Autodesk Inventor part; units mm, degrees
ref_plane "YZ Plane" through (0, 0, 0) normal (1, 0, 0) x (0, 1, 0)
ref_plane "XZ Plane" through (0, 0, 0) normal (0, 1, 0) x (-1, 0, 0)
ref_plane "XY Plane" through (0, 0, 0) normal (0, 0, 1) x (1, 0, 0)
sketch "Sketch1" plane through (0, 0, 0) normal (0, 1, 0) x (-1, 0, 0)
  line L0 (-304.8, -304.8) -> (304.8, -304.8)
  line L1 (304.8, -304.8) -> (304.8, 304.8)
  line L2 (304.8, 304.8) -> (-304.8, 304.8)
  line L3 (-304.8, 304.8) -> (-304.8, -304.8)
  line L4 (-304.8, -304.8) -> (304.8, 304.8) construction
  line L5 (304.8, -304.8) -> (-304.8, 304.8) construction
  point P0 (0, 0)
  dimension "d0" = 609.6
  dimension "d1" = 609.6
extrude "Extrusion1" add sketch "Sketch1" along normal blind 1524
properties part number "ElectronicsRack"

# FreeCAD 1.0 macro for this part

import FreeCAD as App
import Part
import Sketcher
from FreeCAD import Vector
Q = App.Units.Quantity


def add_polygon(sketch, points):
    """Adds a closed chain of lines whose ends are joined by coincident constraints."""
    first, n = sketch.GeometryCount, len(points)
    for a, b in zip(points, points[1:] + points[:1]):
        sketch.addGeometry(Part.LineSegment(App.Vector(*a, 0), App.Vector(*b, 0)), False)
    for i in range(n):
        sketch.addConstraint(Sketcher.Constraint("Coincident", first + i, 2, first + (i + 1) % n, 1))

doc = App.newDocument("Part")
body = doc.addObject("PartDesign::Body", "Body")

sketch1 = body.newObject("Sketcher::SketchObject", "Sketch")
sketch1.AttachmentSupport = (doc.getObject("XZ_Plane"), [""])
sketch1.MapMode = "FlatFace"
add_polygon(sketch1, [(305, 305), (305, -305), (-305, -305), (-305, 305)])
sketch1.addConstraint([
    Sketcher.Constraint("Vertical", 0),
    Sketcher.Constraint("Horizontal", 1),
    Sketcher.Constraint("Vertical", 2),
    Sketcher.Constraint("Horizontal", 3),
    Sketcher.Constraint("Symmetric", 0, 2, 2, 2, -1, 1),
    Sketcher.Constraint("Equal", 3, 0),
    Sketcher.Constraint("DistanceX", 1, 2, 1, 1, Q("24 in")),
])
pad1 = body.newObject("PartDesign::Pad", "Pad")
pad1.Profile = sketch1
pad1.Length = Q("60 in")
pad1.Reversed = True

doc.recompute()
